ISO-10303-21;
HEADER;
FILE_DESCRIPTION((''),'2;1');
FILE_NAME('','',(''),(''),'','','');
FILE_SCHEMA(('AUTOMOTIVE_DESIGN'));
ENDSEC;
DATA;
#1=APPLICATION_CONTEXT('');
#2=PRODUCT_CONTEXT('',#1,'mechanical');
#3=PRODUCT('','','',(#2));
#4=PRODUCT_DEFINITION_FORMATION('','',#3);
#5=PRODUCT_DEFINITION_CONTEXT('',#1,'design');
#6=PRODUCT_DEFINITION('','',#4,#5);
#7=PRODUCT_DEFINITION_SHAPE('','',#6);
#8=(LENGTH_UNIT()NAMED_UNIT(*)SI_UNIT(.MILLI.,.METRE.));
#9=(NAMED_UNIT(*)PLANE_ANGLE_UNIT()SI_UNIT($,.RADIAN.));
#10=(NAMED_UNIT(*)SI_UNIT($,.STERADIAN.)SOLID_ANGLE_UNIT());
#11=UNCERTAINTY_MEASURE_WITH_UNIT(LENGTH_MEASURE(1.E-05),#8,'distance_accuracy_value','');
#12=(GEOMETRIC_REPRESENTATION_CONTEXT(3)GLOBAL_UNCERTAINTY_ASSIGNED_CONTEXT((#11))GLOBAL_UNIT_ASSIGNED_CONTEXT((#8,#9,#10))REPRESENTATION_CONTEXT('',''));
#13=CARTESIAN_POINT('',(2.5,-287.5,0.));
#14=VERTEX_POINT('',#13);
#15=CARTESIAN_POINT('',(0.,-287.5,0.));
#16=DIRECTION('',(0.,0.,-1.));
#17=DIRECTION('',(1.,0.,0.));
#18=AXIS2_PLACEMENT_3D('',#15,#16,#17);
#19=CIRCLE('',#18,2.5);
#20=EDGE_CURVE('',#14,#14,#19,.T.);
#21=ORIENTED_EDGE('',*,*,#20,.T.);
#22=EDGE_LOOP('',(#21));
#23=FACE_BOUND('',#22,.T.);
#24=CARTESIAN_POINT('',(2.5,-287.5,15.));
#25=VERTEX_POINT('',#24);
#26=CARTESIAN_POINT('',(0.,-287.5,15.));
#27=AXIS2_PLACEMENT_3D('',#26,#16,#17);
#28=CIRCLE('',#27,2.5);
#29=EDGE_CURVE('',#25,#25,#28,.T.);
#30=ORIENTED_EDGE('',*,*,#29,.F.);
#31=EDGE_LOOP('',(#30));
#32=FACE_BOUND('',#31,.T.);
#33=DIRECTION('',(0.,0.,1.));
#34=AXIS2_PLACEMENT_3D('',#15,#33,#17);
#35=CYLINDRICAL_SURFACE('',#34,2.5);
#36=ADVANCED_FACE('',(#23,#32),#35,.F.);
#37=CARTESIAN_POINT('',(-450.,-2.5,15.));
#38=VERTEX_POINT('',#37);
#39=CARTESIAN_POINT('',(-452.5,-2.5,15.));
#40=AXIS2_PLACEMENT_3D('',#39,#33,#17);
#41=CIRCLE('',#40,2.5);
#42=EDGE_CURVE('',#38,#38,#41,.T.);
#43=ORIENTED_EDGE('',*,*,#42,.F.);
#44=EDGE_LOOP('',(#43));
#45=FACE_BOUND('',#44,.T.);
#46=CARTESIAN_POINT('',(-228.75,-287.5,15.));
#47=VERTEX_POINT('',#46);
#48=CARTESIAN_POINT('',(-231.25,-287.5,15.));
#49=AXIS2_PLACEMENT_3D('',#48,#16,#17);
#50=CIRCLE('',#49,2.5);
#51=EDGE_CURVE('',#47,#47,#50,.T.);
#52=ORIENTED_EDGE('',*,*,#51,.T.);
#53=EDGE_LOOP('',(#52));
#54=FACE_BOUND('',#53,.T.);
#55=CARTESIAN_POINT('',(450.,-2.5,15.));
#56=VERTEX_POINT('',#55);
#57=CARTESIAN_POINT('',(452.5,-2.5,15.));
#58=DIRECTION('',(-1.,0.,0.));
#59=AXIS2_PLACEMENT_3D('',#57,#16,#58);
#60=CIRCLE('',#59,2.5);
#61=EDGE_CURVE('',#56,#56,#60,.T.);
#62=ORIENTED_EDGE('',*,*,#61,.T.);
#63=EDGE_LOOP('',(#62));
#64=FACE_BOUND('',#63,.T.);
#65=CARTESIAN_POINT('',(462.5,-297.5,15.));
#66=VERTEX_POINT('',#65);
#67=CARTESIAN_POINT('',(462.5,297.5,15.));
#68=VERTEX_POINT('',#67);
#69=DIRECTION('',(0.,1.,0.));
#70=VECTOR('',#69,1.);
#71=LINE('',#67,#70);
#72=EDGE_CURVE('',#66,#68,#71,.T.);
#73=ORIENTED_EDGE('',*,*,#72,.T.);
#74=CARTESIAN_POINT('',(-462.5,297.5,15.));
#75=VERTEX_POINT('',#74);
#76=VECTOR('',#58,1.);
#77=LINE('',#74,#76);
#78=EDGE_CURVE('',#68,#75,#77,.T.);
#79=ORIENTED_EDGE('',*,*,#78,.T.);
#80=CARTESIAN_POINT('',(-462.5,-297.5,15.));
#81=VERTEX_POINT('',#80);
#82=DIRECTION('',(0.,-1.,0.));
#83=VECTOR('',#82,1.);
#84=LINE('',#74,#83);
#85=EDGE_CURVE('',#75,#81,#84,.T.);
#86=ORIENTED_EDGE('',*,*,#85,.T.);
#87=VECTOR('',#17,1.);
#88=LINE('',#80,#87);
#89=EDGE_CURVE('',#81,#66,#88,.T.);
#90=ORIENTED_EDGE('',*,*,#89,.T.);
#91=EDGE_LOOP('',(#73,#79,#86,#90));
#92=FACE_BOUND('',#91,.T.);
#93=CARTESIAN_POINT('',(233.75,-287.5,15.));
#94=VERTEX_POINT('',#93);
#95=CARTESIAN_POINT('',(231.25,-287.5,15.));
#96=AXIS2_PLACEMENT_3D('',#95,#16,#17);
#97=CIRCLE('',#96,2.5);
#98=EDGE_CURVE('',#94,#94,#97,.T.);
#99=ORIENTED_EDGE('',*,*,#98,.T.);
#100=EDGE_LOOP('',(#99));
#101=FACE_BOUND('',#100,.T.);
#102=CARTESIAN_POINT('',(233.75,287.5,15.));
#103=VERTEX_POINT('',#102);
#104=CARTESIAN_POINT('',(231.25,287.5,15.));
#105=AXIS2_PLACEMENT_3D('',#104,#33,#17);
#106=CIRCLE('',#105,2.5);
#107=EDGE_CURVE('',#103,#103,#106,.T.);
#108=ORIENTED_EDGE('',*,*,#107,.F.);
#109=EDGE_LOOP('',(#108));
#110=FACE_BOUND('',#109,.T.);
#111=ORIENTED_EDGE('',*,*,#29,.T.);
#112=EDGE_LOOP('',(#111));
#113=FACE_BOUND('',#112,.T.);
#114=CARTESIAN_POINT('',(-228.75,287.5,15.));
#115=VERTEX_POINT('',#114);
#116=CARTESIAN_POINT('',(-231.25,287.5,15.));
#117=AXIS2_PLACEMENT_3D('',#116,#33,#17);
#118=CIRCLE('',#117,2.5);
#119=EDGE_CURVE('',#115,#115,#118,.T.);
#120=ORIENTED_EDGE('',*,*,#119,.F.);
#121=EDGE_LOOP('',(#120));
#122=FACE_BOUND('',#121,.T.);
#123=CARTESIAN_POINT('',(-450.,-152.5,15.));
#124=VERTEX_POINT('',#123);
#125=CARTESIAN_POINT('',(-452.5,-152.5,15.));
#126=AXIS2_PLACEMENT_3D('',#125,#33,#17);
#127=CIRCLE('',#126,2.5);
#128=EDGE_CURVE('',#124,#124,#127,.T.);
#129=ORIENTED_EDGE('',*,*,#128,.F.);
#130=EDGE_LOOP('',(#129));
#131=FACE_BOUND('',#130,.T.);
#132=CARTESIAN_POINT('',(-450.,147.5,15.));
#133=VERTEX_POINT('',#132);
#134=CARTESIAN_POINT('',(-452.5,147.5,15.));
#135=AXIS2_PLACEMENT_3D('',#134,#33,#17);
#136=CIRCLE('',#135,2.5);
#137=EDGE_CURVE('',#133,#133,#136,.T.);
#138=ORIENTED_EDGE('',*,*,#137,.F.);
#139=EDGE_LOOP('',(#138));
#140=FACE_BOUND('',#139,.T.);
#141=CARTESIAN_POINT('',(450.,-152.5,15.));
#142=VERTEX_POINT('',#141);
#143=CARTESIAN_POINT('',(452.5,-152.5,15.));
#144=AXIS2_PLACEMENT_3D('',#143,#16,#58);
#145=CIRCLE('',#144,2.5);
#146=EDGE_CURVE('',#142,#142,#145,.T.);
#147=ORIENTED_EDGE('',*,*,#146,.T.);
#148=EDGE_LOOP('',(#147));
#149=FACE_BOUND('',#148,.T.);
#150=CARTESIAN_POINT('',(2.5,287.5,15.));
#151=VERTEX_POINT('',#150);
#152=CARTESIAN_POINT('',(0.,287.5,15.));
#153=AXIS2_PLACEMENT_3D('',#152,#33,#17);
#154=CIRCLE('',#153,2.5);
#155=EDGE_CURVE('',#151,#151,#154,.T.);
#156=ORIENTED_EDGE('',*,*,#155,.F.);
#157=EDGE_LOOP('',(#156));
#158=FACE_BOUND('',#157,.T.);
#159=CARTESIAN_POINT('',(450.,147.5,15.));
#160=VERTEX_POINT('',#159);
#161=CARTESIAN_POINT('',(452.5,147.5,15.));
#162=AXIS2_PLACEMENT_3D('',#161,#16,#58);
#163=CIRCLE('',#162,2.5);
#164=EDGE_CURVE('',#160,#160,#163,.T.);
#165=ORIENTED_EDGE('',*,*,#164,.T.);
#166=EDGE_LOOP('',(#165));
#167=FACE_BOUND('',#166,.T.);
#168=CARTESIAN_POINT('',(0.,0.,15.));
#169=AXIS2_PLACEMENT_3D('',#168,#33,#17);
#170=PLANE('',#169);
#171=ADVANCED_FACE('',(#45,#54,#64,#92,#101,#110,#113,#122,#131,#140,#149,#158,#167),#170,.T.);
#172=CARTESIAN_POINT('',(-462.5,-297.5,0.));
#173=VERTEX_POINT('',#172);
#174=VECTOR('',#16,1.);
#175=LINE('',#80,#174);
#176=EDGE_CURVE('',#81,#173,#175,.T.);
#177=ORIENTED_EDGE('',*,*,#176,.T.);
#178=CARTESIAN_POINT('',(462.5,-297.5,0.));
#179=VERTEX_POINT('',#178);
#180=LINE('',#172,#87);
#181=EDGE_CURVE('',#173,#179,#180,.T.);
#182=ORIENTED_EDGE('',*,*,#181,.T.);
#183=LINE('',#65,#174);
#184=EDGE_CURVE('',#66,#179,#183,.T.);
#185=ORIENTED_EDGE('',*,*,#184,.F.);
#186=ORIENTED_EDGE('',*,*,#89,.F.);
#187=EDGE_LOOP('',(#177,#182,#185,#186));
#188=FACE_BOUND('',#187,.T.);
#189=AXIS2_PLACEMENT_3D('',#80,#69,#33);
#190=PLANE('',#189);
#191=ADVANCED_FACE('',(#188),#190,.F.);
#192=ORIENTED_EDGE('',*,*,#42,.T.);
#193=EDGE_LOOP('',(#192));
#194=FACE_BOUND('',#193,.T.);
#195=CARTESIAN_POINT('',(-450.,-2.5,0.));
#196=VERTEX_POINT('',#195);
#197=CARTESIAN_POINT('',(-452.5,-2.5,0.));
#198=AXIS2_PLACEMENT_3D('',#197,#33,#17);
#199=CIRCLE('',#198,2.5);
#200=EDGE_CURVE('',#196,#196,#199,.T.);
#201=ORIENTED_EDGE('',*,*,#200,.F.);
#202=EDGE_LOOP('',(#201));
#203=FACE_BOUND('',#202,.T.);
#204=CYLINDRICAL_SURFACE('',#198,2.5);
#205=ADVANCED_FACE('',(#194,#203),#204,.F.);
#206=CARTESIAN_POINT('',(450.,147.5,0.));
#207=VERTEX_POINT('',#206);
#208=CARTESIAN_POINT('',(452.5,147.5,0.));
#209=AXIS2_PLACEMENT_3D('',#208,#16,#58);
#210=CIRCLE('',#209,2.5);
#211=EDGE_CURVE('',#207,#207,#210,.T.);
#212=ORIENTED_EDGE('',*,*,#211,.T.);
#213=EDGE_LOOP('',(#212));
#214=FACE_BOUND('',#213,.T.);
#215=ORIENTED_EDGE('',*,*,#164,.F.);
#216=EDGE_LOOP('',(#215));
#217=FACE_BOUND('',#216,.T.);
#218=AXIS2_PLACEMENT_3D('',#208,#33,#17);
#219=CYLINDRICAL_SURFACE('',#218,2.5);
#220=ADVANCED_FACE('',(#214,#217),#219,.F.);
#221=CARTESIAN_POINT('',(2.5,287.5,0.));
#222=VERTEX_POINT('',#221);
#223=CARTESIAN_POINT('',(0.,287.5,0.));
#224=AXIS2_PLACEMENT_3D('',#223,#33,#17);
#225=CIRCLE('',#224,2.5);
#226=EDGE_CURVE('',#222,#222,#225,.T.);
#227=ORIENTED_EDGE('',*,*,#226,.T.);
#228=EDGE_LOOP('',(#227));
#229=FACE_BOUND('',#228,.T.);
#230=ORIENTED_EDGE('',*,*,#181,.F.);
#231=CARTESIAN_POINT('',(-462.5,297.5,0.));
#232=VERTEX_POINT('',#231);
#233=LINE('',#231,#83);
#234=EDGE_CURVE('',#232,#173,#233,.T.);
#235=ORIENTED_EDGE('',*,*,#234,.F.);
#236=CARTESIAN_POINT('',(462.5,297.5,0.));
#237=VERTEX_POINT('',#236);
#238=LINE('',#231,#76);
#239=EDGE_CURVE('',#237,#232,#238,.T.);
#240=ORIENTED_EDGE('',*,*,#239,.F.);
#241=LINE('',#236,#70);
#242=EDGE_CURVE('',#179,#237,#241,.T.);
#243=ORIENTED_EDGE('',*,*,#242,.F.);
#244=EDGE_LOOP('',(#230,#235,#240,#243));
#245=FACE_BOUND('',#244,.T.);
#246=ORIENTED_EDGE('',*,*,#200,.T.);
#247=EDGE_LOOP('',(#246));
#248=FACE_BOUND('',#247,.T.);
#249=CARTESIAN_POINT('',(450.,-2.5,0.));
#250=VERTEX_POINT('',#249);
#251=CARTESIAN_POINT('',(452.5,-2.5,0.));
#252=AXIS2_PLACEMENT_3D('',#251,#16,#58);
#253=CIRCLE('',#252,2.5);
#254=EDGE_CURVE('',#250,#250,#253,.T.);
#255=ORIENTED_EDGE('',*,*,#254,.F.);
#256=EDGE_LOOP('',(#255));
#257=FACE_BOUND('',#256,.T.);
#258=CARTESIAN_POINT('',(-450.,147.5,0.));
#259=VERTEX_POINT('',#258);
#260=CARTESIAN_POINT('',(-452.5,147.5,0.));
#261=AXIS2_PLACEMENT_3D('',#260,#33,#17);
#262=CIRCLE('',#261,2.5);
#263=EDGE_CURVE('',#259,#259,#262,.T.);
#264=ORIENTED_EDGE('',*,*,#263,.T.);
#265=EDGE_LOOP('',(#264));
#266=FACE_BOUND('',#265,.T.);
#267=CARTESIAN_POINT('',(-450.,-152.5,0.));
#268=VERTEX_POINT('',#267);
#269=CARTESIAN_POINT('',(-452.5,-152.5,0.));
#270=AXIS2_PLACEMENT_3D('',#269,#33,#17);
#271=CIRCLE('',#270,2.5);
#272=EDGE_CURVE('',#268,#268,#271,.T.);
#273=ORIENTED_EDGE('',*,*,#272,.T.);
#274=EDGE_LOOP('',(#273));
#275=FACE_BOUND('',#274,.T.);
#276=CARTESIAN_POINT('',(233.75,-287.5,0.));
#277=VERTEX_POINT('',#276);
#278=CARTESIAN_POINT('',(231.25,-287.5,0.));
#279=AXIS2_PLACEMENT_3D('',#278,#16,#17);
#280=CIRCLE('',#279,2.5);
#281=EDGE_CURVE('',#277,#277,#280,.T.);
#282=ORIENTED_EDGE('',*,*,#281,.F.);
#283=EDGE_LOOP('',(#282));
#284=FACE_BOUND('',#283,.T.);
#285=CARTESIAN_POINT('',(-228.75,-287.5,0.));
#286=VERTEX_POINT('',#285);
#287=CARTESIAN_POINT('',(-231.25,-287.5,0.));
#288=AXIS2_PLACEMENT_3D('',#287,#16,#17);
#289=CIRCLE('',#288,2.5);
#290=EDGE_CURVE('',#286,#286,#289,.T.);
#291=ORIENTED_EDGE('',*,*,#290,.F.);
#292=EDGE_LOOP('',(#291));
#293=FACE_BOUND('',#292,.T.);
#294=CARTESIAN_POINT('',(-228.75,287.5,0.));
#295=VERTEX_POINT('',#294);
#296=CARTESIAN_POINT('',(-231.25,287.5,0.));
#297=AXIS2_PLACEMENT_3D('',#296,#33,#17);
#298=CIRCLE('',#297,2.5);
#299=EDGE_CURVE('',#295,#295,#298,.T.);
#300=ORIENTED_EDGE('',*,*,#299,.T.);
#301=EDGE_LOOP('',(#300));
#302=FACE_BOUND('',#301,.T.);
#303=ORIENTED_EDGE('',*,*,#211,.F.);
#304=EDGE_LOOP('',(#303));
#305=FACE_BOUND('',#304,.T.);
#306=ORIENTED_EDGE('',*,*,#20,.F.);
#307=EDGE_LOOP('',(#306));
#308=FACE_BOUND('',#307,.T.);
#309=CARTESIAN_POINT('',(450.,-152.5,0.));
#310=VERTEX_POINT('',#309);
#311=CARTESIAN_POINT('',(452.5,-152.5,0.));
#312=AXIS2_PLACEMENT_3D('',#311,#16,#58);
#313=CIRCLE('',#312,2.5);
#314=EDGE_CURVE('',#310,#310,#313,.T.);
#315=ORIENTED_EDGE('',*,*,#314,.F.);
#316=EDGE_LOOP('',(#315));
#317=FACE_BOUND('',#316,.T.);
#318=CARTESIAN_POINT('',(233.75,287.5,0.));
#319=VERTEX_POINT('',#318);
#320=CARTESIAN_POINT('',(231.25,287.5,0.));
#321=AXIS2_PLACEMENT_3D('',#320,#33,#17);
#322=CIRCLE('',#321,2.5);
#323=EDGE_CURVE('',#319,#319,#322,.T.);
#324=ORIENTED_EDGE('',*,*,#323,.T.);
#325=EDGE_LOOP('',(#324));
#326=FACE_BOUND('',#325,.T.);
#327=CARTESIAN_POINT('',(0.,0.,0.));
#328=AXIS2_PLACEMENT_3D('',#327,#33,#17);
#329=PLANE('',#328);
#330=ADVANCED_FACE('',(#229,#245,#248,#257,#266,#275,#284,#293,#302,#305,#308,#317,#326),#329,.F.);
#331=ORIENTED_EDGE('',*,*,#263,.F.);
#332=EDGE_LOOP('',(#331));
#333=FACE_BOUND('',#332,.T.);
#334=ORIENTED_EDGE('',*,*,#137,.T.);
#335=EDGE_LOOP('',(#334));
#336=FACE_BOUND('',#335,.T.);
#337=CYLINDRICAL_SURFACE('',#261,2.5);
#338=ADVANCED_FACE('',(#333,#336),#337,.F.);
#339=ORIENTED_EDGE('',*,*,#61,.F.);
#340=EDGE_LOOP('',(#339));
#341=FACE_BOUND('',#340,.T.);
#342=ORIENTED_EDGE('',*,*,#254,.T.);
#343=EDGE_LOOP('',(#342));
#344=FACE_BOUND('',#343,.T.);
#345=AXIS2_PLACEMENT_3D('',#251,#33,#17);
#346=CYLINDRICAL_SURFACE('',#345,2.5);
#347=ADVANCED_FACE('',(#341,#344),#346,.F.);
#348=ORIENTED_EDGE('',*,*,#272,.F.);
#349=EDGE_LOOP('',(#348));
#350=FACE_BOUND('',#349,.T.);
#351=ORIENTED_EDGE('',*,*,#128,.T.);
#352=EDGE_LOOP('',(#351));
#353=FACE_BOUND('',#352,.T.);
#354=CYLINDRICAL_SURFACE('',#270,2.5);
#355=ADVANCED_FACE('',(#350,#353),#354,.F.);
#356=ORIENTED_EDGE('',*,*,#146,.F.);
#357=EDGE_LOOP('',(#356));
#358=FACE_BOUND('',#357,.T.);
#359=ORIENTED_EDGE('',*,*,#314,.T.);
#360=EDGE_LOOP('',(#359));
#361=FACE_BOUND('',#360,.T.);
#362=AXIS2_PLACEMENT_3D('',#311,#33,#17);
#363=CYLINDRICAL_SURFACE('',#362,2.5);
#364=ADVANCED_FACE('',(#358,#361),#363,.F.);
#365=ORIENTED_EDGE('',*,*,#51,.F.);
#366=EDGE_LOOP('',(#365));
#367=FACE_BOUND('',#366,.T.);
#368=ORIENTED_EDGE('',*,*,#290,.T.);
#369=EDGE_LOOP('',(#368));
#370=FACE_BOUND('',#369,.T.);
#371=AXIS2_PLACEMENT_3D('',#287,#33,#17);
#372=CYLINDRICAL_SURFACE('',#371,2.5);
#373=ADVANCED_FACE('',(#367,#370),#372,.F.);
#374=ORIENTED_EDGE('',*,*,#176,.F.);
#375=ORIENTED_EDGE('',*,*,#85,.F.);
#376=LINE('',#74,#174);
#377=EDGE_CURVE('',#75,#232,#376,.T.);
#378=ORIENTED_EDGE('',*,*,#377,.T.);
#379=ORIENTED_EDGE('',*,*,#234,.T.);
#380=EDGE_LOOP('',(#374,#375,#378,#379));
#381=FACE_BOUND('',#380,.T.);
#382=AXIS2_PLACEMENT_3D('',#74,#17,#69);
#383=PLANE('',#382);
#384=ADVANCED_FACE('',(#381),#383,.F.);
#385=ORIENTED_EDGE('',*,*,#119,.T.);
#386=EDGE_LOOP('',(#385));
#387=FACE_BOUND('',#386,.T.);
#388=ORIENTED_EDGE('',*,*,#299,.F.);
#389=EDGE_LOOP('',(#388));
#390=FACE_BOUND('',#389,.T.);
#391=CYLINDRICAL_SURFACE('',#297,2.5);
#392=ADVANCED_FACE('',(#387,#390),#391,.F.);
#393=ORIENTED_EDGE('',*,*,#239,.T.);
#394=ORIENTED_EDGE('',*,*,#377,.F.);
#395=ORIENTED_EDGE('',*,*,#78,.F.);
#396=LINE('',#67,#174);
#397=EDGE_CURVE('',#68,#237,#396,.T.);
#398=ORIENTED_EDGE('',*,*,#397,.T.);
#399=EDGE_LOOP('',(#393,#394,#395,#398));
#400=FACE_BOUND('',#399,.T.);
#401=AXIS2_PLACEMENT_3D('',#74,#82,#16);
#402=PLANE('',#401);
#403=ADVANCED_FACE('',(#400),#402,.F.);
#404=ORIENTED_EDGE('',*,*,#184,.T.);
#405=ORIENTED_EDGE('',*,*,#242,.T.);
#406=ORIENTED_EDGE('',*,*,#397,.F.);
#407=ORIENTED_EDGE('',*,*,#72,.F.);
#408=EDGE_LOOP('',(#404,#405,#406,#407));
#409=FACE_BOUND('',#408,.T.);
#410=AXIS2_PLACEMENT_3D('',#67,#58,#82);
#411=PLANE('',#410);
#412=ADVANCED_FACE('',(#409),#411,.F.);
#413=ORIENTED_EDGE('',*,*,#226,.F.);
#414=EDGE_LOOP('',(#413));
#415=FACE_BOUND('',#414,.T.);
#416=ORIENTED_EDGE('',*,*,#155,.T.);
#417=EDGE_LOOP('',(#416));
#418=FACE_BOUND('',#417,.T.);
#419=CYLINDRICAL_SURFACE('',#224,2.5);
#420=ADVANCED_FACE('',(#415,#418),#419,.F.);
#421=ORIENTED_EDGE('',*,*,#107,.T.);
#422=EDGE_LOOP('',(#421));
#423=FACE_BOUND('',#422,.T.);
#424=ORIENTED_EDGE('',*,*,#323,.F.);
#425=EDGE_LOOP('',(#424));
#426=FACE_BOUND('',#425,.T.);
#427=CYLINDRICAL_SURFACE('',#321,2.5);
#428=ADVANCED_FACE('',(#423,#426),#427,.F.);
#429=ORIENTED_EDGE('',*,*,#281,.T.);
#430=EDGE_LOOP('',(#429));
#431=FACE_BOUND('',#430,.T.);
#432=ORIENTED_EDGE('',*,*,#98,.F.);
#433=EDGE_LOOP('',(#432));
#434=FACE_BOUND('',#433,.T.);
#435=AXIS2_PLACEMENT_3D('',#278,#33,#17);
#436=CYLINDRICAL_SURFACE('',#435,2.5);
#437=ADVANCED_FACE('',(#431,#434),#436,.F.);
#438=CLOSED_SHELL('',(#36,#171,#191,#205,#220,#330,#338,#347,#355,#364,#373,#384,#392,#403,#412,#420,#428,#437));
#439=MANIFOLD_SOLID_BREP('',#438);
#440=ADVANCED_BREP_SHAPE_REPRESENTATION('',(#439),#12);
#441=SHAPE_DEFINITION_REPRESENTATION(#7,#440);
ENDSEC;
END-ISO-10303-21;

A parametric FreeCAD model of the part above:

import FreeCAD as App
import Part
import Sketcher
from FreeCAD import Vector

doc = App.newDocument("Part")
body = doc.addObject("PartDesign::Body", "Body")

# Sketch on XY plane
sketch1 = body.newObject("Sketcher::SketchObject", "Sketch")
sketch1.AttachmentSupport = (doc.getObject("XY_Plane"), [""])
sketch1.MapMode = "FlatFace"
sketch1.addGeometry([
    Part.LineSegment(Vector(-462, 298, 0), Vector(-462, -298, 0)),
    Part.LineSegment(Vector(-462, -298, 0), Vector(462, -298, 0)),
    Part.LineSegment(Vector(462, -298, 0), Vector(462, 298, 0)),
    Part.LineSegment(Vector(462, 298, 0), Vector(-462, 298, 0)),
], False)
sketch1.addConstraint([
    Sketcher.Constraint("Coincident", 0, 2, 1, 1),
    Sketcher.Constraint("Coincident", 1, 2, 2, 1),
    Sketcher.Constraint("Coincident", 2, 2, 3, 1),
    Sketcher.Constraint("Coincident", 3, 2, 0, 1),
    Sketcher.Constraint("Vertical", 0),
    Sketcher.Constraint("Horizontal", 1),
    Sketcher.Constraint("Vertical", 2),
    Sketcher.Constraint("Horizontal", 3),
    Sketcher.Constraint("Symmetric", 0, 2, 2, 2, -1, 1),
    Sketcher.Constraint("DistanceX", 1, 1, 1, 2, 925.0),
    Sketcher.Constraint("DistanceY", 0, 2, 0, 1, 595.0),
])
pad1 = body.newObject("PartDesign::Pad", "Pad")
pad1.Profile = sketch1
pad1.Length = 15

# Sketch on XY plane
sketch2 = body.newObject("Sketcher::SketchObject", "Sketch001")
sketch2.AttachmentSupport = (doc.getObject("XY_Plane"), [""])
sketch2.MapMode = "FlatFace"
sketch2.AttachmentOffset = App.Placement(Vector(0, 0, 15), App.Rotation())
sketch2.addGeometry([
    Part.Circle(Vector(-231.2, 287.5, 0), Vector(0, 0, 1), 2.5),
    Part.Circle(Vector(0, 287.5, 0), Vector(0, 0, 1), 2.5),
    Part.Circle(Vector(231.2, 287.5, 0), Vector(0, 0, 1), 2.5),
], False)
sketch2.addConstraint([
    Sketcher.Constraint("Equal", 0, 1),
    Sketcher.Constraint("Equal", 1, 2),
    Sketcher.Constraint("Symmetric", 0, 3, 2, 3, -2),
    Sketcher.Constraint("PointOnObject", 1, 3, -2),
    Sketcher.Constraint("Horizontal", 0, 3, 1, 3),
    Sketcher.Constraint("Diameter", 0, 5.0),
    Sketcher.Constraint("DistanceY", -1, 1, 0, 3, 287.5),
    Sketcher.Constraint("DistanceX", 0, 3, 2, 3, 462.5),
])
pocket1 = body.newObject("PartDesign::Pocket", "Pocket")
pocket1.Profile = sketch2
pocket1.Type = "ThroughAll"

# Sketch on XY plane
sketch3 = body.newObject("Sketcher::SketchObject", "Sketch002")
sketch3.AttachmentSupport = (doc.getObject("XY_Plane"), [""])
sketch3.MapMode = "FlatFace"
sketch3.AttachmentOffset = App.Placement(Vector(0, 0, 15), App.Rotation())
sketch3.addGeometry([
    Part.Circle(Vector(-452.5, 147.5, 0), Vector(0, 0, 1), 2.5),
    Part.Circle(Vector(-452.5, -2.5, 0), Vector(0, 0, 1), 2.5),
    Part.Circle(Vector(-452.5, -152.5, 0), Vector(0, 0, 1), 2.5),
], False)
sketch3.addConstraint([
    Sketcher.Constraint("Equal", 0, 1),
    Sketcher.Constraint("Equal", 1, 2),
    Sketcher.Constraint("Vertical", 0, 3, 1, 3),
    Sketcher.Constraint("Vertical", 1, 3, 2, 3),
    Sketcher.Constraint("Diameter", 0, 5.0),
    Sketcher.Constraint("DistanceY", 1, 3, 0, 3, 150.0),
    Sketcher.Constraint("DistanceY", 2, 3, 1, 3, 150.0),
    Sketcher.Constraint("DistanceX", 0, 3, -1, 1, 452.5),
    Sketcher.Constraint("DistanceY", -1, 1, 0, 3, 147.5),
])
pocket2 = body.newObject("PartDesign::Pocket", "Pocket001")
pocket2.Profile = sketch3
pocket2.Type = "ThroughAll"
doc.recompute()

mirrored = body.newObject("PartDesign::Mirrored", "Mirrored")
mirrored.Originals = [pocket1]
mirrored.MirrorPlane = (doc.getObject("XZ_Plane"), [""])
body.Tip = mirrored
doc.recompute()

mirrored2 = body.newObject("PartDesign::Mirrored", "Mirrored001")
mirrored2.Originals = [pocket2]
mirrored2.MirrorPlane = (doc.getObject("YZ_Plane"), [""])
body.Tip = mirrored2

doc.recompute()
